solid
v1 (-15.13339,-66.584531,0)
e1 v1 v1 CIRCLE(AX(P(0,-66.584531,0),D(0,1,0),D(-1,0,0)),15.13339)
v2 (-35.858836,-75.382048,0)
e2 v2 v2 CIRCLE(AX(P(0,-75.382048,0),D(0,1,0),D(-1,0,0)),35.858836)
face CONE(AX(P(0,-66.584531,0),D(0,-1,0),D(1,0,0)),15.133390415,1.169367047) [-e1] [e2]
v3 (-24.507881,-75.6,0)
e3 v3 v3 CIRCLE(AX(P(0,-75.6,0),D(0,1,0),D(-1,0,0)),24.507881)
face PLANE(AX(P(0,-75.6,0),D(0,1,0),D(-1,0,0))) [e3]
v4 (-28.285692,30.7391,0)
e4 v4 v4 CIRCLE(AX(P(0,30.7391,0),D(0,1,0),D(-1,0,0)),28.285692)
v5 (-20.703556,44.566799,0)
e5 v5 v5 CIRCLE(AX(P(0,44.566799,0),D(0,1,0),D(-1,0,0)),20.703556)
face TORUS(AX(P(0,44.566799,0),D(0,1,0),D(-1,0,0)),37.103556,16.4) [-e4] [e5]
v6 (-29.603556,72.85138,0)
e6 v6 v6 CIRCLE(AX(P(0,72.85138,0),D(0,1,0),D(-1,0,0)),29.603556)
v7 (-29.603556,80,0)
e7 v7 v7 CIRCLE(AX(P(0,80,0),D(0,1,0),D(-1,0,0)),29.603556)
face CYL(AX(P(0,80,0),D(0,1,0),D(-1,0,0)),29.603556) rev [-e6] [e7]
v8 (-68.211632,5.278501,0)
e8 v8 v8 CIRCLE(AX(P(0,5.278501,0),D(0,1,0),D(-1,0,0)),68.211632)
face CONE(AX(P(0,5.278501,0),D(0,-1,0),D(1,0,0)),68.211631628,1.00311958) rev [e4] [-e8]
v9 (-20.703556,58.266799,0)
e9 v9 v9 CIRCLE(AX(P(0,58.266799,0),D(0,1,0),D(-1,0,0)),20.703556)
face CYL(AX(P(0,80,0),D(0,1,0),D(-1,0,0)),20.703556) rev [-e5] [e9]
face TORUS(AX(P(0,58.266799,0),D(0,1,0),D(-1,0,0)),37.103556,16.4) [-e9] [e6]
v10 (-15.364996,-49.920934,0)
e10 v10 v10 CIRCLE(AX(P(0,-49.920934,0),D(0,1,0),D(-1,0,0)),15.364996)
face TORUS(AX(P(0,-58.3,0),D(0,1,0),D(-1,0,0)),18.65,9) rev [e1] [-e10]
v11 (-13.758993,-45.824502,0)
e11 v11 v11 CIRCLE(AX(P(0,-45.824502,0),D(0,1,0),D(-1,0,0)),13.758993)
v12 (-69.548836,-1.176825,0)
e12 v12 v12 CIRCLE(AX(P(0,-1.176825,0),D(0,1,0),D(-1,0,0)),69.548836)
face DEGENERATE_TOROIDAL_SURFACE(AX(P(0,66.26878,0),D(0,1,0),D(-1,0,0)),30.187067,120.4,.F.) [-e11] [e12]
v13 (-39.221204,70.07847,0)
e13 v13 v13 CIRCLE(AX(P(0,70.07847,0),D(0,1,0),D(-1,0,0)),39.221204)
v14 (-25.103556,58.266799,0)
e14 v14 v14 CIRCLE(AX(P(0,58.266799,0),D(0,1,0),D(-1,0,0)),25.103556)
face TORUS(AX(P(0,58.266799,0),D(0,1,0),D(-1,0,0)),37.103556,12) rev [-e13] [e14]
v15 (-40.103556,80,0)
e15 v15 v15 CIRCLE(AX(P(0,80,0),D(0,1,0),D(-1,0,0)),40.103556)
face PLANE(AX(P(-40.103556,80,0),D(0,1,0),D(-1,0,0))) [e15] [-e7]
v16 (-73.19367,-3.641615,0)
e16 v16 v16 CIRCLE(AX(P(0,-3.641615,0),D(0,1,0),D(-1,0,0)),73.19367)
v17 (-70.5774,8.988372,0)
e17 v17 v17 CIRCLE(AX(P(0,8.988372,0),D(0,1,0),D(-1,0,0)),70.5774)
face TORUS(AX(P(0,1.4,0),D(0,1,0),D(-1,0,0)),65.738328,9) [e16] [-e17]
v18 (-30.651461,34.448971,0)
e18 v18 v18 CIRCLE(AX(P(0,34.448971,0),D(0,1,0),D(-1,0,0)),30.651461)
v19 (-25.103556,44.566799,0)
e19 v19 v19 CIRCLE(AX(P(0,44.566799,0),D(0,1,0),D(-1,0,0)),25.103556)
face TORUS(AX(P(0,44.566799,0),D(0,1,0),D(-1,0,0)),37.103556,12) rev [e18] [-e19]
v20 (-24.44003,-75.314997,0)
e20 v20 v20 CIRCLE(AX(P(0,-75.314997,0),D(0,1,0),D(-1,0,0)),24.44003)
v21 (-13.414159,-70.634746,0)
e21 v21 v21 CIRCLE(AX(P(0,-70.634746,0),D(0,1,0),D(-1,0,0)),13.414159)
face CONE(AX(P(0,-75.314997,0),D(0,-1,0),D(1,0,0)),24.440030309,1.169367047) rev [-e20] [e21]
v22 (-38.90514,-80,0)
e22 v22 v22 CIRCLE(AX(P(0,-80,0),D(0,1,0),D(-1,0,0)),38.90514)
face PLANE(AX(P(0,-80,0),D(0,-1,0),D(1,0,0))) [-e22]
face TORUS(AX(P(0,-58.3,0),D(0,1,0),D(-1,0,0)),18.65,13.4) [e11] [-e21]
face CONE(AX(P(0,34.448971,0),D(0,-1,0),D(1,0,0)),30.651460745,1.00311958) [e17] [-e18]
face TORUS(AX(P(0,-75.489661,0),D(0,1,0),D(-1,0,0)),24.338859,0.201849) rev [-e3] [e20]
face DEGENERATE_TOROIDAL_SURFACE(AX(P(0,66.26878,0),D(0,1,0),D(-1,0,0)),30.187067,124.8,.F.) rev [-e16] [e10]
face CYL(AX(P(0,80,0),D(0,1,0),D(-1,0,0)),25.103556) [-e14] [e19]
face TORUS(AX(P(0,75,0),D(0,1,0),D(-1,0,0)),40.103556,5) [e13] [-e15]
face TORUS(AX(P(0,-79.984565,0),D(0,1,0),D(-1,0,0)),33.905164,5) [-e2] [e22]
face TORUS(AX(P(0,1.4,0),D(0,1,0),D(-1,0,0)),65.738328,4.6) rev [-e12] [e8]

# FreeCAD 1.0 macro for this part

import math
import FreeCAD as App
import Part
import Sketcher

V = App.Vector

doc = App.newDocument("Part")
params = doc.addObject("Spreadsheet::Sheet", "Params")
for row, (alias, value) in enumerate([
    ("sketch1_radius", "5 mm"),
    ("sketch1_radius2", "12 mm"),
    ("sketch1_radius3", "9 mm"),
    ("sketch1_radius4", "13.4 mm"),
    ("sketch1_radius5", "120.4 mm"),
    ("revolution_angle", "360 deg"),
], start=1):
    params.set(f"A{row}", alias)
    params.set(f"B{row}", "=" + value)
    params.setAlias(f"B{row}", alias)

body = doc.addObject("PartDesign::Body", "Body")

sketch1 = body.newObject("Sketcher::SketchObject", "Sketch")
sketch1.AttachmentSupport = (doc.getObject("XY_Plane"), [""])
sketch1.MapMode = "FlatFace"
sketch1.addGeometry(Part.LineSegment(V(-38.90514, -80, 0), V(0, -80, 0)), False)
sketch1.addGeometry(Part.LineSegment(V(0, -80, 0), V(0, -75.6, 0)), False)
sketch1.addGeometry(Part.LineSegment(V(0, -75.6, 0), V(-24.507881, -75.6, 0)), False)
sketch1.addGeometry(Part.ArcOfCircle(Part.Circle(V(-24.338859, -75.489661, 0), V(0, 0, 1), 0.201849), math.radians(120.080889), math.radians(213.136994)), False)
sketch1.addGeometry(Part.LineSegment(V(-24.44003, -75.314997, 0), V(-13.414159, -70.634746, 0)), False)
sketch1.addGeometry(Part.ArcOfCircle(Part.Circle(V(-18.65, -58.3, 0), V(0, 0, 1), 13.4), math.radians(-66.999796), math.radians(68.592387)), False)
sketch1.addGeometry(Part.ArcOfCircle(Part.Circle(V(30.187067, 66.26878, 0), V(0, 0, 1), 120.4), math.radians(-145.931791), math.radians(-111.407613)), False)
sketch1.addGeometry(Part.ArcOfCircle(Part.Circle(V(-65.738328, 1.4, 0), V(0, 0, 1), 4.6), math.radians(122.525482), math.radians(214.068209)), False)
sketch1.addGeometry(Part.LineSegment(V(-68.211632, 5.278501, 0), V(-28.285692, 30.7391, 0)), False)
sketch1.addGeometry(Part.ArcOfCircle(Part.Circle(V(-37.103556, 44.566799, 0), V(0, 0, 1), 16.4), math.radians(-57.474518), math.radians(0)), False)
sketch1.addGeometry(Part.LineSegment(V(-20.703556, 44.566799, 0), V(-20.703556, 58.266799, 0)), False)
sketch1.addGeometry(Part.ArcOfCircle(Part.Circle(V(-37.103556, 58.266799, 0), V(0, 0, 1), 16.4), math.radians(0), math.radians(62.785882)), False)
sketch1.addGeometry(Part.LineSegment(V(-29.603556, 72.85138, 0), V(-29.603556, 80, 0)), False)
sketch1.addGeometry(Part.LineSegment(V(-29.603556, 80, 0), V(-40.103556, 80, 0)), False)
sketch1.addGeometry(Part.ArcOfCircle(Part.Circle(V(-40.103556, 75, 0), V(0, 0, 1), 5), math.radians(90), math.radians(280.164249)), False)
sketch1.addGeometry(Part.ArcOfCircle(Part.Circle(V(-37.103556, 58.266799, 0), V(0, 0, 1), 12), math.radians(0), math.radians(100.164249)), False)
sketch1.addGeometry(Part.LineSegment(V(-25.103556, 58.266799, 0), V(-25.103556, 44.566799, 0)), False)
sketch1.addGeometry(Part.ArcOfCircle(Part.Circle(V(-37.103556, 44.566799, 0), V(0, 0, 1), 12), math.radians(-57.474518), math.radians(0)), False)
sketch1.addGeometry(Part.LineSegment(V(-30.651461, 34.448971, 0), V(-70.5774, 8.988372, 0)), False)
sketch1.addGeometry(Part.ArcOfCircle(Part.Circle(V(-65.738328, 1.4, 0), V(0, 0, 1), 9), math.radians(122.525482), math.radians(214.068209)), False)
sketch1.addGeometry(Part.ArcOfCircle(Part.Circle(V(30.187067, 66.26878, 0), V(0, 0, 1), 124.8), math.radians(-145.931791), math.radians(-111.407613)), False)
sketch1.addGeometry(Part.ArcOfCircle(Part.Circle(V(-18.65, -58.3, 0), V(0, 0, 1), 9), math.radians(-66.999796), math.radians(68.592387)), False)
sketch1.addGeometry(Part.LineSegment(V(-15.13339, -66.584531, 0), V(-35.858836, -75.382048, 0)), False)
sketch1.addGeometry(Part.ArcOfCircle(Part.Circle(V(-33.905164, -79.984565, 0), V(0, 0, 1), 5), math.radians(113.000204), math.radians(180.176871)), False)
sketch1.addConstraint(Sketcher.Constraint("Coincident", 0, 2, 1, 1))
sketch1.addConstraint(Sketcher.Constraint("Coincident", 1, 2, 2, 1))
sketch1.addConstraint(Sketcher.Constraint("Coincident", 2, 2, 3, 2))
sketch1.addConstraint(Sketcher.Constraint("Coincident", 3, 1, 4, 1))
sketch1.addConstraint(Sketcher.Constraint("Tangent", 4, 2, 5, 1))
sketch1.addConstraint(Sketcher.Constraint("Tangent", 5, 2, 6, 2))
sketch1.addConstraint(Sketcher.Constraint("Tangent", 6, 1, 7, 2))
sketch1.addConstraint(Sketcher.Constraint("Tangent", 7, 1, 8, 1))
sketch1.addConstraint(Sketcher.Constraint("Tangent", 8, 2, 9, 1))
sketch1.addConstraint(Sketcher.Constraint("Tangent", 9, 2, 10, 1))
sketch1.addConstraint(Sketcher.Constraint("Tangent", 10, 2, 11, 1))
sketch1.addConstraint(Sketcher.Constraint("Coincident", 11, 2, 12, 1))
sketch1.addConstraint(Sketcher.Constraint("Coincident", 12, 2, 13, 1))
sketch1.addConstraint(Sketcher.Constraint("Tangent", 13, 2, 14, 1))
sketch1.addConstraint(Sketcher.Constraint("Tangent", 14, 2, 15, 2))
sketch1.addConstraint(Sketcher.Constraint("Tangent", 15, 1, 16, 1))
sketch1.addConstraint(Sketcher.Constraint("Tangent", 16, 2, 17, 2))
sketch1.addConstraint(Sketcher.Constraint("Tangent", 17, 1, 18, 1))
sketch1.addConstraint(Sketcher.Constraint("Tangent", 18, 2, 19, 1))
sketch1.addConstraint(Sketcher.Constraint("Tangent", 19, 2, 20, 1))
sketch1.addConstraint(Sketcher.Constraint("Tangent", 20, 2, 21, 2))
sketch1.addConstraint(Sketcher.Constraint("Tangent", 21, 1, 22, 1))
sketch1.addConstraint(Sketcher.Constraint("Tangent", 22, 2, 23, 1))
sketch1.addConstraint(Sketcher.Constraint("Coincident", 23, 2, 0, 1))
sketch1.addConstraint(Sketcher.Constraint("Horizontal", 0))
sketch1.addConstraint(Sketcher.Constraint("Vertical", 1))
sketch1.addConstraint(Sketcher.Constraint("Horizontal", 2))
sketch1.addConstraint(Sketcher.Constraint("Vertical", 10))
sketch1.addConstraint(Sketcher.Constraint("Vertical", 12))
sketch1.addConstraint(Sketcher.Constraint("Horizontal", 13))
sketch1.addConstraint(Sketcher.Constraint("Vertical", 16))
sketch1.addConstraint(Sketcher.Constraint("Coincident", 15, 3, 11, 3))
sketch1.addConstraint(Sketcher.Constraint("Coincident", 17, 3, 9, 3))
sketch1.addConstraint(Sketcher.Constraint("Coincident", 19, 3, 7, 3))
sketch1.addConstraint(Sketcher.Constraint("Coincident", 20, 3, 6, 3))
sketch1.addConstraint(Sketcher.Constraint("Coincident", 21, 3, 5, 3))
sketch1.addConstraint(Sketcher.Constraint("Equal", 9, 11))
sketch1.addConstraint(Sketcher.Constraint("Equal", 19, 21))
sketch1.addConstraint(Sketcher.Constraint("Equal", 14, 23))
sketch1.addConstraint(Sketcher.Constraint("PointOnObject", 0, 2, -2))
sketch1.addConstraint(Sketcher.Constraint("Parallel", 8, 18))
sketch1.addConstraint(Sketcher.Constraint("Parallel", 4, 22))
sketch1.addConstraint(Sketcher.Constraint("Radius", 14, 5.0))
sketch1.addConstraint(Sketcher.Constraint("Radius", 15, 12.0))
sketch1.addConstraint(Sketcher.Constraint("Radius", 19, 9.0))
sketch1.addConstraint(Sketcher.Constraint("Radius", 5, 13.4))
sketch1.addConstraint(Sketcher.Constraint("Radius", 6, 120.4))
sketch1.addConstraint(Sketcher.Constraint("DistanceX", 13, 2, 13, 1, 10.5))
sketch1.addConstraint(Sketcher.Constraint("DistanceY", 1, 1, 1, 2, 4.4))
sketch1.addConstraint(Sketcher.Constraint("DistanceY", 10, 1, 10, 2, 13.7))
sketch1.addConstraint(Sketcher.Constraint("DistanceY", -1, 1, 14, 3, 75.0))
sketch1.addConstraint(Sketcher.Constraint("DistanceY", 0, 2, -1, 1, 80.0))
sketch1.addConstraint(Sketcher.Constraint("DistanceX", 14, 3, 11, 3, 3.0))
sketch1.addConstraint(Sketcher.Constraint("DistanceY", 5, 3, -1, 1, 58.3))
sketch1.addConstraint(Sketcher.Constraint("DistanceY", -1, 1, 7, 3, 1.4))
sketch1.addConstraint(Sketcher.Constraint("DistanceX", 5, 3, -1, 1, 18.65))
sketch1.addConstraint(Sketcher.Constraint("Radius", 3, 0.201849))
sketch1.addConstraint(Sketcher.Constraint("DistanceX", 0, 1, 0, 2, 38.90514))
sketch1.addConstraint(Sketcher.Constraint("DistanceX", 2, 2, 2, 1, 24.507881))
sketch1.addConstraint(Sketcher.Constraint("DistanceY", 5, 2, -1, 1, 45.824502))
sketch1.addConstraint(Sketcher.Constraint("DistanceY", -1, 1, 7, 1, 5.278501))
sketch1.addConstraint(Sketcher.Constraint("DistanceX", 3, 3, 4, 2, 10.9247))
sketch1.addConstraint(Sketcher.Constraint("DistanceX", 3, 3, -1, 1, 24.338859))
sketch1.setExpression("Constraints[42]", "Params.sketch1_radius")
sketch1.setExpression("Constraints[43]", "Params.sketch1_radius2")
sketch1.setExpression("Constraints[44]", "Params.sketch1_radius3")
sketch1.setExpression("Constraints[45]", "Params.sketch1_radius4")
sketch1.setExpression("Constraints[46]", "Params.sketch1_radius5")
revolution = body.newObject("PartDesign::Revolution", "Revolution")
revolution.Profile = sketch1
revolution.ReferenceAxis = (sketch1, ["V_Axis"])
revolution.setExpression("Angle", "Params.revolution_angle")

doc.recompute()
